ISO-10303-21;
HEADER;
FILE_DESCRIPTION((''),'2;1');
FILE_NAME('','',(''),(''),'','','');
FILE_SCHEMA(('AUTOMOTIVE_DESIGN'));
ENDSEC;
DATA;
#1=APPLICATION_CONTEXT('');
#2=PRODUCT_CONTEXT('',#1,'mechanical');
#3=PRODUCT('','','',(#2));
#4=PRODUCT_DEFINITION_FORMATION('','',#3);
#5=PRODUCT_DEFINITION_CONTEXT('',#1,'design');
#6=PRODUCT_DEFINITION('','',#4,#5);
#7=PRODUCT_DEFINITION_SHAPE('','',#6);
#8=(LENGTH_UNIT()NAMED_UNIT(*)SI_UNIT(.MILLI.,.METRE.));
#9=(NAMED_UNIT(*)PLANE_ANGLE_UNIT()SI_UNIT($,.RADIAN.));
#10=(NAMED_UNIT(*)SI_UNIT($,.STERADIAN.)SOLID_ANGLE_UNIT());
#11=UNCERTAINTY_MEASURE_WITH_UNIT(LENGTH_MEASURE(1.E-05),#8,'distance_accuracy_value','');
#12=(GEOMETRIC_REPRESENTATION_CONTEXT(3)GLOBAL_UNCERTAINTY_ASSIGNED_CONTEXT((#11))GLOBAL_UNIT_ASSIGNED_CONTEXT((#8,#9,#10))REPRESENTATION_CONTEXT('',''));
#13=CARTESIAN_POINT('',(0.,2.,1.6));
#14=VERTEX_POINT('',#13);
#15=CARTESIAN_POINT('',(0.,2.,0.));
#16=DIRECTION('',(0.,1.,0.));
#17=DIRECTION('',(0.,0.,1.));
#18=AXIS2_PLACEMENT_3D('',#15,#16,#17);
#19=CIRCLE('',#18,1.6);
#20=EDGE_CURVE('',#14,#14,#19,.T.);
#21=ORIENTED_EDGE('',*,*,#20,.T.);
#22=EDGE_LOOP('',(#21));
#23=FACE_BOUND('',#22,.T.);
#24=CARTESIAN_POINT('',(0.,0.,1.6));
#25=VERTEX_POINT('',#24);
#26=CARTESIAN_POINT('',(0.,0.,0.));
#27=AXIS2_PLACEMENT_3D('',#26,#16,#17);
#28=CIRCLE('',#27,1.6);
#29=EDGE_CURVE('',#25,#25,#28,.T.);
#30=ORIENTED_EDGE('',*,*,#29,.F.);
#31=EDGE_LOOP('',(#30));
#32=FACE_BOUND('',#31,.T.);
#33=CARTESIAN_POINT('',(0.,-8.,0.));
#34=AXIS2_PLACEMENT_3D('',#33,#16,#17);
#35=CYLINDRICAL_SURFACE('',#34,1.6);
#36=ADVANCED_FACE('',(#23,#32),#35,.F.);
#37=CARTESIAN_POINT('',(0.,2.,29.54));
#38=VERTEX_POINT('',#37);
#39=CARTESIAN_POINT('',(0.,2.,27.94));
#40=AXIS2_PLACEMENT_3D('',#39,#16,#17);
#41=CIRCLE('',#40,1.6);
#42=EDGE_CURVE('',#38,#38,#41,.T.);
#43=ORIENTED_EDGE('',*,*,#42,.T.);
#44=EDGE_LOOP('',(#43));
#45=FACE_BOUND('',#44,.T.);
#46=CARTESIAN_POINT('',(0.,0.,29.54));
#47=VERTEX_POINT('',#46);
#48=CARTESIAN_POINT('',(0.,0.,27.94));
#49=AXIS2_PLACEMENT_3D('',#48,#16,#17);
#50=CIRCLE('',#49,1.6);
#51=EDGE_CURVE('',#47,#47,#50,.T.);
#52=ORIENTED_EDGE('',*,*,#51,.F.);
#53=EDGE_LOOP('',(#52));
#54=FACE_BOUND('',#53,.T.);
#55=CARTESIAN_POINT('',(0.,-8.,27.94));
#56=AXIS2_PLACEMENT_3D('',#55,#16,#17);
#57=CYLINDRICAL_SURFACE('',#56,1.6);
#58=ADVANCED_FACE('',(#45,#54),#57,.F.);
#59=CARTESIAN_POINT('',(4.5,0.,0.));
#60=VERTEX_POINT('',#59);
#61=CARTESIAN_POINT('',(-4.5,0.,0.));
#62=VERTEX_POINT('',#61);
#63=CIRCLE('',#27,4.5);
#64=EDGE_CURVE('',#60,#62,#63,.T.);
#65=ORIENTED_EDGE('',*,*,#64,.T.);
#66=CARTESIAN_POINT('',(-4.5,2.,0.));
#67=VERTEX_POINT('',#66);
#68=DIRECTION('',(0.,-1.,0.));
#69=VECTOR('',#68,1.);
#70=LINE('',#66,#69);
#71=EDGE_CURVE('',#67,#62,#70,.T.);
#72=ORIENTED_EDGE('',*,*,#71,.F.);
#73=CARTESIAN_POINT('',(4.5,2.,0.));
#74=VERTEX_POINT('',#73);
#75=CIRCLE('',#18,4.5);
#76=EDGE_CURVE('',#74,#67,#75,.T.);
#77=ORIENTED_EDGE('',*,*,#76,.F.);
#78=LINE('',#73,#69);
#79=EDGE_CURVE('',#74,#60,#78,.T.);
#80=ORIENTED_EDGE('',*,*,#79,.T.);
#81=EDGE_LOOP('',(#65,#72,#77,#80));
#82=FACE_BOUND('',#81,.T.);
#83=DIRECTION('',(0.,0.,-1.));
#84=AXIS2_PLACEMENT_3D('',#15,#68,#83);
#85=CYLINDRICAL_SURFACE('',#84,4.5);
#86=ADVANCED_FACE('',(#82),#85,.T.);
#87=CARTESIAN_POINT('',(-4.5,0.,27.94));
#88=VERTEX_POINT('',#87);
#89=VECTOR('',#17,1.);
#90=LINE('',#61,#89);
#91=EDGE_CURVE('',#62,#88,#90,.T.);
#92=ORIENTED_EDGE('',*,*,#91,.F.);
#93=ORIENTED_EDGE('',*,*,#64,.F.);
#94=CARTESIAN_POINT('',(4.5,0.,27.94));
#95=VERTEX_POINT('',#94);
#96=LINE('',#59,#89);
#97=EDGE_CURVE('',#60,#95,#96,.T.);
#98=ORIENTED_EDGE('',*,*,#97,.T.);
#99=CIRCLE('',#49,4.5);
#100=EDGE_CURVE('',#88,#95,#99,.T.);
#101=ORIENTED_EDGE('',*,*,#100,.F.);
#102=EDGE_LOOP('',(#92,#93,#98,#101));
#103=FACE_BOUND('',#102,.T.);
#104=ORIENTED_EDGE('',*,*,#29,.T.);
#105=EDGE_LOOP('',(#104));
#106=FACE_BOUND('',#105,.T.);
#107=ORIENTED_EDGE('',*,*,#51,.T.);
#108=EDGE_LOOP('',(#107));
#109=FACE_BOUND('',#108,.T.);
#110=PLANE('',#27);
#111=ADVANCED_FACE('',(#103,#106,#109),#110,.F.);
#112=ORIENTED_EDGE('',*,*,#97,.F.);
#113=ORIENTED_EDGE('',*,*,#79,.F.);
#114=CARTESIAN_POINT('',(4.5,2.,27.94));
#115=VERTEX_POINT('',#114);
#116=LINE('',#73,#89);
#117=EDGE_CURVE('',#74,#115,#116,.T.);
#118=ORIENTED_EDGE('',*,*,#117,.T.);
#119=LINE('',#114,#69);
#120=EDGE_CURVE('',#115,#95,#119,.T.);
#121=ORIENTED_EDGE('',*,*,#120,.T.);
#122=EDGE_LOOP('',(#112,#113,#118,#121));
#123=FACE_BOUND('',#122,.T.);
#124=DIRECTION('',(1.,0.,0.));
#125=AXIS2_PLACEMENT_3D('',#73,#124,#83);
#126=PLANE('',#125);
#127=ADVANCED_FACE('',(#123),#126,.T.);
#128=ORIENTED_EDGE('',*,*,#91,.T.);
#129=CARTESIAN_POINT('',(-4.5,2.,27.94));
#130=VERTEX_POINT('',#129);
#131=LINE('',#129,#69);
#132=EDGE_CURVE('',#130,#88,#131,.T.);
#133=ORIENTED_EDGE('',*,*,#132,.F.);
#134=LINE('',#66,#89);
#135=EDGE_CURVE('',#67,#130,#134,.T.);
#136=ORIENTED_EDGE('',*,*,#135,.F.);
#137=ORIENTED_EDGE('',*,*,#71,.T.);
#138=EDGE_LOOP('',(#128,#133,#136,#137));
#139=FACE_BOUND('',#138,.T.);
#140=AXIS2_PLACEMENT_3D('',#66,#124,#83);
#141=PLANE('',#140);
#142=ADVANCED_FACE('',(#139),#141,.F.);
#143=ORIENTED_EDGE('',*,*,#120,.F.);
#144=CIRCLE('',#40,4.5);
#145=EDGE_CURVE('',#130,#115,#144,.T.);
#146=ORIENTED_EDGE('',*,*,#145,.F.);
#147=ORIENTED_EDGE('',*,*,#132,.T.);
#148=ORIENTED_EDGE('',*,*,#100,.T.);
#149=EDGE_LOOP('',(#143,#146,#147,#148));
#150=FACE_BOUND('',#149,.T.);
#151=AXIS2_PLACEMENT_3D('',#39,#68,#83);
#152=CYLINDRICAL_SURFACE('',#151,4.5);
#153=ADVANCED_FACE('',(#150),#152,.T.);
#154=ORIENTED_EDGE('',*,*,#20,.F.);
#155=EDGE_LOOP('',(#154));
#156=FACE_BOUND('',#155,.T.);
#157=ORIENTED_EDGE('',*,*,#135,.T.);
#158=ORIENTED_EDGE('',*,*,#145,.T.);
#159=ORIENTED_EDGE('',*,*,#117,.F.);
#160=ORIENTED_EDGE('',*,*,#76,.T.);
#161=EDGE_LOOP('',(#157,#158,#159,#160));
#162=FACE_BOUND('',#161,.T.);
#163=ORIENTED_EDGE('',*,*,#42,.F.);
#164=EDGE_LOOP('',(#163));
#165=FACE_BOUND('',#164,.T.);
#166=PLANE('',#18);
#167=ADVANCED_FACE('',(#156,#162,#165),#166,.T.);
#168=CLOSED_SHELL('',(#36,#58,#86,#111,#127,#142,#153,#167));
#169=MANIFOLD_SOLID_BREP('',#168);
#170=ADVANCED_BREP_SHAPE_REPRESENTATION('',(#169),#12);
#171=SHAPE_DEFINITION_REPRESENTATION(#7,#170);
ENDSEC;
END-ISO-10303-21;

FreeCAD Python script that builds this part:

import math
import FreeCAD as App
import Part
import Sketcher

doc = App.newDocument("Part")
body = doc.addObject("PartDesign::Body", "Body")

sketch1 = body.newObject("Sketcher::SketchObject", "Sketch")
sketch1.AttachmentSupport = (doc.getObject("XZ_Plane"), [""])
sketch1.MapMode = "FlatFace"
sketch1.addGeometry([
    Part.ArcOfCircle(Part.Circle(App.Vector(0, 0, 0), App.Vector(0, 0, 1), 4.5), math.radians(180), math.radians(360)),
    Part.LineSegment(App.Vector(-4.5, 0, 0), App.Vector(-4.5, 27.9, 0)),
    Part.ArcOfCircle(Part.Circle(App.Vector(0, 27.9, 0), App.Vector(0, 0, 1), 4.5), math.radians(0), math.radians(180)),
    Part.LineSegment(App.Vector(4.5, 27.9, 0), App.Vector(4.5, 0, 0)),
], False)
sketch1.addConstraint([
    Sketcher.Constraint("Tangent", 0, 1, 1, 1),
    Sketcher.Constraint("Tangent", 1, 2, 2, 2),
    Sketcher.Constraint("Tangent", 2, 1, 3, 1),
    Sketcher.Constraint("Tangent", 3, 2, 0, 2),
    Sketcher.Constraint("Vertical", 1),
    Sketcher.Constraint("Vertical", 3),
    Sketcher.Constraint("Coincident", 0, 3, -1, 1),
    Sketcher.Constraint("Radius", 0, 4.5),
    Sketcher.Constraint("DistanceY", 1, 1, 1, 2, 27.94),
])
pad1 = body.newObject("PartDesign::Pad", "Pad")
pad1.Profile = sketch1
pad1.Length = 2
pad1.Reversed = True

sketch2 = body.newObject("Sketcher::SketchObject", "Sketch001")
sketch2.AttachmentSupport = (doc.getObject("XZ_Plane"), [""])
sketch2.MapMode = "FlatFace"
sketch2.AttachmentOffset = App.Placement(App.Vector(0, 0, -2), App.Rotation())
sketch2.addGeometry([
    Part.Circle(App.Vector(0, 0, 0), App.Vector(0, 0, 1), 1.6),
    Part.Circle(App.Vector(0, 27.9, 0), App.Vector(0, 0, 1), 1.6),
], False)
sketch2.addConstraint([
    Sketcher.Constraint("Coincident", 0, 3, -1, 1),
    Sketcher.Constraint("Equal", 0, 1),
    Sketcher.Constraint("PointOnObject", 1, 3, -2),
    Sketcher.Constraint("Diameter", 0, 3.2),
    Sketcher.Constraint("DistanceY", -1, 1, 1, 3, 27.94),
])
pocket1 = body.newObject("PartDesign::Pocket", "Pocket")
pocket1.Profile = sketch2
pocket1.Length = 10
pocket1.Reversed = True

doc.recompute()
